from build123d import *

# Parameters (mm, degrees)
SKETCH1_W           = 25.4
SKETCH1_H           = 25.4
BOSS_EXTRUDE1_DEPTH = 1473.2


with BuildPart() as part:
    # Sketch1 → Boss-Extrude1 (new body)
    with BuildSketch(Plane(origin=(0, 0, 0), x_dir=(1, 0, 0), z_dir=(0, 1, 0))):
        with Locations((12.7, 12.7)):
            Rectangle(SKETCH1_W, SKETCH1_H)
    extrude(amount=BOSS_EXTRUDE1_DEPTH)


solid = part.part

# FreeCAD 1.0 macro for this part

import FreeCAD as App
import Part
import Sketcher

V = App.Vector
Q = App.Units.Quantity

doc = App.newDocument("Part")
body = doc.addObject("PartDesign::Body", "Body")

sketch1 = body.newObject("Sketcher::SketchObject", "Sketch")
sketch1.AttachmentSupport = (doc.getObject("XZ_Plane"), [""])
sketch1.MapMode = "FlatFace"
sketch1.addGeometry([
    Part.LineSegment(V(0, -25, 0), V(0, 0, 0)),
    Part.LineSegment(V(0, 0, 0), V(25, 0, 0)),
    Part.LineSegment(V(25, 0, 0), V(25, -25, 0)),
    Part.LineSegment(V(25, -25, 0), V(0, -25, 0)),
], False)
sketch1.addConstraint([
    Sketcher.Constraint("Coincident", 0, 2, 1, 1),
    Sketcher.Constraint("Coincident", 1, 2, 2, 1),
    Sketcher.Constraint("Coincident", 2, 2, 3, 1),
    Sketcher.Constraint("Coincident", 3, 2, 0, 1),
    Sketcher.Constraint("Vertical", 0),
    Sketcher.Constraint("Horizontal", 1),
    Sketcher.Constraint("Vertical", 2),
    Sketcher.Constraint("Horizontal", 3),
    Sketcher.Constraint("Coincident", 0, 2, -1, 1),
    Sketcher.Constraint("Equal", 3, 0),
    Sketcher.Constraint("DistanceX", 1, 1, 1, 2, Q("1 in")),
])
pad1 = body.newObject("PartDesign::Pad", "Pad")
pad1.Profile = sketch1
pad1.Length = Q("58 in")
pad1.Reversed = True

doc.recompute()
